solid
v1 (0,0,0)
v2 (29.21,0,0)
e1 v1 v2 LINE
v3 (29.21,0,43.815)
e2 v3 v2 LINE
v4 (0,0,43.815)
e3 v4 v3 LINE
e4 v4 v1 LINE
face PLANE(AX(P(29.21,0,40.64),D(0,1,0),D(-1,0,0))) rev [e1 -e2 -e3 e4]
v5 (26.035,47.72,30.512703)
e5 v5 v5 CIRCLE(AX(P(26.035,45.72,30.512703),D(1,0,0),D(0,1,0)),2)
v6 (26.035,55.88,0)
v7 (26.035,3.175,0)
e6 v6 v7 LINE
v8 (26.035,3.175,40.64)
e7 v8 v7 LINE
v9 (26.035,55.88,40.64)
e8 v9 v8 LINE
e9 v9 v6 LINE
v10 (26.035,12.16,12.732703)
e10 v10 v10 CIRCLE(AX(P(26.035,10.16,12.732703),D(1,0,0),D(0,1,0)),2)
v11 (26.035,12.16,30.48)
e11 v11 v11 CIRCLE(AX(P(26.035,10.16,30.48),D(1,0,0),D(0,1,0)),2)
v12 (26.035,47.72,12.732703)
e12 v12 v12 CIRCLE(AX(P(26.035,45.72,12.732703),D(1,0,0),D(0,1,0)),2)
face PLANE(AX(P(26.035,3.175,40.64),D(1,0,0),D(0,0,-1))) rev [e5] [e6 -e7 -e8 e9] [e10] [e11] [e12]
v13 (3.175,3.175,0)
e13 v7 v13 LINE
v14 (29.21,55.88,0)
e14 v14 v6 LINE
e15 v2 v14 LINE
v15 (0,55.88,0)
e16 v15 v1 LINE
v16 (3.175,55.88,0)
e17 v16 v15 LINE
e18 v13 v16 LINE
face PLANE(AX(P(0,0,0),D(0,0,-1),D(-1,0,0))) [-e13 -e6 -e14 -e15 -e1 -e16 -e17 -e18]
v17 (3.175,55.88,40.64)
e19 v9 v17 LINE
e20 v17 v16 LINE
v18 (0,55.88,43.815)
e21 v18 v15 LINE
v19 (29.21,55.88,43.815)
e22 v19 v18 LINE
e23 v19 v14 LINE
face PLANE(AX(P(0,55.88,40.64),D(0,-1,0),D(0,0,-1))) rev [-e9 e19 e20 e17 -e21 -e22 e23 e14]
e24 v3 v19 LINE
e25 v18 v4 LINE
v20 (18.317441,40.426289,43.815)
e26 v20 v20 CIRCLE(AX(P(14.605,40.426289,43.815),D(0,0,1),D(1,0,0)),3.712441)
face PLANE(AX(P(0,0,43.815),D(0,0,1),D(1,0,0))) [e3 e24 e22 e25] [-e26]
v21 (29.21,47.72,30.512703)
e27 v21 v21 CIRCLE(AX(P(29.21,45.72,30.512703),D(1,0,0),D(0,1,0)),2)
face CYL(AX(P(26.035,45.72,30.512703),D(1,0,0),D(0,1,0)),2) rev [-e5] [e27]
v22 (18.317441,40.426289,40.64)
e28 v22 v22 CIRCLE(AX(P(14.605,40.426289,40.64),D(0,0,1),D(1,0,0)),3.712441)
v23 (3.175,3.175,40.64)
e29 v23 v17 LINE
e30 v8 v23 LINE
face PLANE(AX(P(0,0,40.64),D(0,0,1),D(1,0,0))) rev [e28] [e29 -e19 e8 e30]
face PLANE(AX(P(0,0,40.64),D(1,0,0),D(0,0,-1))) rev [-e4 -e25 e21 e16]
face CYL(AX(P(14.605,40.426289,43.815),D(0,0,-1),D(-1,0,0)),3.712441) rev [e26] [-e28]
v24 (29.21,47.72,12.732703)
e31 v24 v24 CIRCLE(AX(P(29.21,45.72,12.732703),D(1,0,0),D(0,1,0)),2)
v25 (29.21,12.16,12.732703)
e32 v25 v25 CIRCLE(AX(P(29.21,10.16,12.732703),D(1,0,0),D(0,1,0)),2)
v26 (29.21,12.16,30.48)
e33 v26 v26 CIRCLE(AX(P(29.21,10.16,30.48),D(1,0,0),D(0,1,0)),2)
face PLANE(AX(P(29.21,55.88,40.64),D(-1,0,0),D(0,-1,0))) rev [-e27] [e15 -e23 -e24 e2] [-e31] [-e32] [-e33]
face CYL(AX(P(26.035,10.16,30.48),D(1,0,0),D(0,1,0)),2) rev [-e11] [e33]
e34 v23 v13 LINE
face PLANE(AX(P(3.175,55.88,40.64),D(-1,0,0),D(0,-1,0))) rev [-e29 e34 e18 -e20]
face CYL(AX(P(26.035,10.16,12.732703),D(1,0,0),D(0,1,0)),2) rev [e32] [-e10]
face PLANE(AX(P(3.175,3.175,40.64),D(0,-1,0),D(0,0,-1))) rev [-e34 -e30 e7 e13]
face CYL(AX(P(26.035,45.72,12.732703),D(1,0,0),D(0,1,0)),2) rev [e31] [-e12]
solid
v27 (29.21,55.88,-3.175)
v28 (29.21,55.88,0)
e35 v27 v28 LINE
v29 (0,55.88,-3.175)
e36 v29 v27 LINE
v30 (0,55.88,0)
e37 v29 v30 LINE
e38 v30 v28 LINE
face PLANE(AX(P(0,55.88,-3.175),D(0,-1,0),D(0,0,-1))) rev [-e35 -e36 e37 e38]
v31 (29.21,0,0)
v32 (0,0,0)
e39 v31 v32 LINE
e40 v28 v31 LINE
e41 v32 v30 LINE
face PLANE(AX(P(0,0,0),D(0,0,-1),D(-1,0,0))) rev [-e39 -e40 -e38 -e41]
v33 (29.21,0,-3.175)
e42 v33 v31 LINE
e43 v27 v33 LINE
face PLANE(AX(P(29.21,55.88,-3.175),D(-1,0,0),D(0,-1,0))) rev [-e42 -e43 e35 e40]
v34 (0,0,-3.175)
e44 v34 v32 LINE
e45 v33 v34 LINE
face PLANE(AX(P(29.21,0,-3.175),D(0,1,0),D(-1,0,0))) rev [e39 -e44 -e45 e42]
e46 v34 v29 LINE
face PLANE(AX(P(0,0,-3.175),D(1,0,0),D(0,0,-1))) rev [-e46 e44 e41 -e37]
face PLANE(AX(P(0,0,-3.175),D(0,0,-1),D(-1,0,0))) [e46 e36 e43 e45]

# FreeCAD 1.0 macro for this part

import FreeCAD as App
import Part
import Sketcher
from FreeCAD import Vector
Q = App.Units.Quantity

doc = App.newDocument("Part")
body = doc.addObject("PartDesign::Body", "Body")

# Sketch on XY plane
sketch1 = body.newObject("Sketcher::SketchObject", "Sketch")
sketch1.AttachmentSupport = (doc.getObject("XY_Plane"), [""])
sketch1.MapMode = "FlatFace"
sketch1.addGeometry(Part.LineSegment(Vector(0, 55.9, 0), Vector(0, 0, 0)), False)
sketch1.addGeometry(Part.LineSegment(Vector(0, 0, 0), Vector(29.2, 0, 0)), False)
sketch1.addGeometry(Part.LineSegment(Vector(29.2, 0, 0), Vector(29.2, 55.9, 0)), False)
sketch1.addGeometry(Part.LineSegment(Vector(29.2, 55.9, 0), Vector(26, 55.9, 0)), False)
sketch1.addGeometry(Part.LineSegment(Vector(26, 55.9, 0), Vector(26, 3.2, 0)), False)
sketch1.addGeometry(Part.LineSegment(Vector(26, 3.2, 0), Vector(3.2, 3.2, 0)), False)
sketch1.addGeometry(Part.LineSegment(Vector(3.2, 3.2, 0), Vector(3.2, 55.9, 0)), False)
sketch1.addGeometry(Part.LineSegment(Vector(3.2, 55.9, 0), Vector(0, 55.9, 0)), False)
sketch1.addConstraint(Sketcher.Constraint("Coincident", 0, 2, 1, 1))
sketch1.addConstraint(Sketcher.Constraint("Coincident", 1, 2, 2, 1))
sketch1.addConstraint(Sketcher.Constraint("Coincident", 2, 2, 3, 1))
sketch1.addConstraint(Sketcher.Constraint("Coincident", 3, 2, 4, 1))
sketch1.addConstraint(Sketcher.Constraint("Coincident", 4, 2, 5, 1))
sketch1.addConstraint(Sketcher.Constraint("Coincident", 5, 2, 6, 1))
sketch1.addConstraint(Sketcher.Constraint("Coincident", 6, 2, 7, 1))
sketch1.addConstraint(Sketcher.Constraint("Coincident", 7, 2, 0, 1))
sketch1.addConstraint(Sketcher.Constraint("Vertical", 0))
sketch1.addConstraint(Sketcher.Constraint("Horizontal", 1))
sketch1.addConstraint(Sketcher.Constraint("Vertical", 2))
sketch1.addConstraint(Sketcher.Constraint("Horizontal", 3))
sketch1.addConstraint(Sketcher.Constraint("Vertical", 4))
sketch1.addConstraint(Sketcher.Constraint("Horizontal", 5))
sketch1.addConstraint(Sketcher.Constraint("Vertical", 6))
sketch1.addConstraint(Sketcher.Constraint("Horizontal", 7))
sketch1.addConstraint(Sketcher.Constraint("Coincident", 0, 2, -1, 1))
sketch1.addConstraint(Sketcher.Constraint("Horizontal", 3, 2, 6, 2))
sketch1.addConstraint(Sketcher.Constraint("Equal", 3, 7))
sketch1.addConstraint(Sketcher.Constraint("DistanceX", 5, 2, 5, 1, Q("0.9 in")))
sketch1.addConstraint(Sketcher.Constraint("DistanceY", 0, 2, 0, 1, Q("2.2 in")))
sketch1.addConstraint(Sketcher.Constraint("DistanceX", 1, 1, 1, 2, Q("1.15 in")))
sketch1.addConstraint(Sketcher.Constraint("DistanceY", 4, 2, 4, 1, Q("2.075 in")))
pad1 = body.newObject("PartDesign::Pad", "Pad")
pad1.Profile = sketch1
pad1.Length = Q("1.6 in")

# Sketch on XY plane
sketch2 = body.newObject("Sketcher::SketchObject", "Sketch001")
sketch2.AttachmentSupport = (doc.getObject("XY_Plane"), [""])
sketch2.MapMode = "FlatFace"
sketch2.AttachmentOffset = App.Placement(Vector(0, 0, 1.6 * 25.4), App.Rotation())
sketch2.addGeometry(Part.LineSegment(Vector(0, 55.9, 0), Vector(0, 0, 0)), False)
sketch2.addGeometry(Part.LineSegment(Vector(0, 0, 0), Vector(29.2, 0, 0)), False)
sketch2.addGeometry(Part.LineSegment(Vector(29.2, 0, 0), Vector(29.2, 55.9, 0)), False)
sketch2.addGeometry(Part.LineSegment(Vector(29.2, 55.9, 0), Vector(0, 55.9, 0)), False)
sketch2.addGeometry(Part.Circle(Vector(14.6, 40.4, 0), Vector(0, 0, 1), 3.7), False)
sketch2.addConstraint(Sketcher.Constraint("Coincident", 0, 2, 1, 1))
sketch2.addConstraint(Sketcher.Constraint("Coincident", 1, 2, 2, 1))
sketch2.addConstraint(Sketcher.Constraint("Coincident", 2, 2, 3, 1))
sketch2.addConstraint(Sketcher.Constraint("Coincident", 3, 2, 0, 1))
sketch2.addConstraint(Sketcher.Constraint("Vertical", 0))
sketch2.addConstraint(Sketcher.Constraint("Horizontal", 1))
sketch2.addConstraint(Sketcher.Constraint("Vertical", 2))
sketch2.addConstraint(Sketcher.Constraint("Horizontal", 3))
sketch2.addConstraint(Sketcher.Constraint("Coincident", 0, 2, -1, 1))
sketch2.addConstraint(Sketcher.Constraint("DistanceY", 0, 2, 0, 1, Q("2.2 in")))
sketch2.addConstraint(Sketcher.Constraint("DistanceX", 1, 1, 1, 2, Q("1.15 in")))
sketch2.addConstraint(Sketcher.Constraint("Diameter", 4, Q("7.424881 mm")))
sketch2.addConstraint(Sketcher.Constraint("DistanceX", -1, 1, 4, 3, Q("0.575 in")))
sketch2.addConstraint(Sketcher.Constraint("DistanceY", -1, 1, 4, 3, Q("40.426289 mm")))
pad2 = body.newObject("PartDesign::Pad", "Pad001")
pad2.Profile = sketch2
pad2.Length = Q("0.125 in")

# Sketch on YZ plane
sketch3 = body.newObject("Sketcher::SketchObject", "Sketch002")
sketch3.AttachmentSupport = (doc.getObject("YZ_Plane"), [""])
sketch3.MapMode = "FlatFace"
sketch3.AttachmentOffset = App.Placement(Vector(0, 0, 1.15 * 25.4), App.Rotation())
sketch3.addGeometry(Part.Circle(Vector(45.7, 12.7, 0), Vector(0, 0, 1), 2), False)
sketch3.addGeometry(Part.Circle(Vector(10.2, 30.5, 0), Vector(0, 0, 1), 2), False)
sketch3.addGeometry(Part.Circle(Vector(10.2, 12.7, 0), Vector(0, 0, 1), 2), False)
sketch3.addGeometry(Part.Circle(Vector(45.7, 30.5, 0), Vector(0, 0, 1), 2), False)
sketch3.addConstraint(Sketcher.Constraint("Equal", 0, 1))
sketch3.addConstraint(Sketcher.Constraint("Equal", 1, 2))
sketch3.addConstraint(Sketcher.Constraint("Equal", 2, 3))
sketch3.addConstraint(Sketcher.Constraint("Horizontal", 0, 3, 2, 3))
sketch3.addConstraint(Sketcher.Constraint("Vertical", 1, 3, 2, 3))
sketch3.addConstraint(Sketcher.Constraint("Vertical", 0, 3, 3, 3))
sketch3.addConstraint(Sketcher.Constraint("DistanceX", -1, 1, 0, 3, Q("1.8 in")))
sketch3.addConstraint(Sketcher.Constraint("DistanceX", -1, 1, 1, 3, Q("0.4 in")))
sketch3.addConstraint(Sketcher.Constraint("DistanceY", -1, 1, 1, 3, Q("1.2 in")))
sketch3.addConstraint(Sketcher.Constraint("DistanceY", 0, 3, 3, 3, Q("0.7 in")))
sketch3.addConstraint(Sketcher.Constraint("Diameter", 0, Q("4 mm")))
sketch3.addConstraint(Sketcher.Constraint("DistanceY", -1, 1, 0, 3, Q("12.732703 mm")))
pocket1 = body.newObject("PartDesign::Pocket", "Pocket")
pocket1.Profile = sketch3
pocket1.Length = Q("0.125 in")
body2 = doc.addObject("PartDesign::Body", "Body001")

# Sketch on XY plane
sketch4 = body2.newObject("Sketcher::SketchObject", "Sketch003")
sketch4.AttachmentSupport = (doc.getObject("XY_Plane001"), [""])
sketch4.MapMode = "FlatFace"
sketch4.addGeometry(Part.LineSegment(Vector(29, 56, 0), Vector(29, 0, 0)), False)
sketch4.addGeometry(Part.LineSegment(Vector(29, 0, 0), Vector(0, 0, 0)), False)
sketch4.addGeometry(Part.LineSegment(Vector(0, 0, 0), Vector(0, 56, 0)), False)
sketch4.addGeometry(Part.LineSegment(Vector(0, 56, 0), Vector(29, 56, 0)), False)
sketch4.addConstraint(Sketcher.Constraint("Coincident", 0, 2, 1, 1))
sketch4.addConstraint(Sketcher.Constraint("Coincident", 1, 2, 2, 1))
sketch4.addConstraint(Sketcher.Constraint("Coincident", 2, 2, 3, 1))
sketch4.addConstraint(Sketcher.Constraint("Coincident", 3, 2, 0, 1))
sketch4.addConstraint(Sketcher.Constraint("Vertical", 0))
sketch4.addConstraint(Sketcher.Constraint("Horizontal", 1))
sketch4.addConstraint(Sketcher.Constraint("Vertical", 2))
sketch4.addConstraint(Sketcher.Constraint("Horizontal", 3))
sketch4.addConstraint(Sketcher.Constraint("Coincident", 1, 2, -1, 1))
sketch4.addConstraint(Sketcher.Constraint("DistanceY", 0, 2, 0, 1, Q("2.2 in")))
sketch4.addConstraint(Sketcher.Constraint("DistanceX", 1, 2, 1, 1, Q("1.15 in")))
pad3 = body2.newObject("PartDesign::Pad", "Pad002")
pad3.Profile = sketch4
pad3.Length = Q("0.125 in")
pad3.Reversed = True

doc.recompute()
